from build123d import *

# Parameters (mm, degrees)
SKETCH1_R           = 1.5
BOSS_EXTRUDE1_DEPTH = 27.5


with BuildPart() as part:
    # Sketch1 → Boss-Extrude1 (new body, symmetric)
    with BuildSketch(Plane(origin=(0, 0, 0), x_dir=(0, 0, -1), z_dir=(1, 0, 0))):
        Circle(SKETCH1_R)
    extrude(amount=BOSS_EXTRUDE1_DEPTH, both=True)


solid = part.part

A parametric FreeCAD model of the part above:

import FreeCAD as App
import Part
import Sketcher
Q = App.Units.Quantity

doc = App.newDocument("Part")
body = doc.addObject("PartDesign::Body", "Body")

# Sketch on YZ plane
sketch1 = doc.addObject("Sketcher::SketchObject", "Sketch")
body.addObject(sketch1)
sketch1.AttachmentSupport = (doc.YZ_Plane, [""])
sketch1.MapMode = "FlatFace"
sketch1.addGeometry(Part.Circle(App.Vector(0, 0, 0), App.Vector(0, 0, 1), 1.5), False)
sketch1.addConstraint([
    Sketcher.Constraint("Coincident", 0, 3, -1, 1),
    Sketcher.Constraint("Diameter", 0, Q("3 mm")),
])
pad1 = doc.addObject("PartDesign::Pad", "Pad")
body.addObject(pad1)
pad1.Profile = sketch1
pad1.Length = 55
pad1.Midplane = True

doc.recompute()
